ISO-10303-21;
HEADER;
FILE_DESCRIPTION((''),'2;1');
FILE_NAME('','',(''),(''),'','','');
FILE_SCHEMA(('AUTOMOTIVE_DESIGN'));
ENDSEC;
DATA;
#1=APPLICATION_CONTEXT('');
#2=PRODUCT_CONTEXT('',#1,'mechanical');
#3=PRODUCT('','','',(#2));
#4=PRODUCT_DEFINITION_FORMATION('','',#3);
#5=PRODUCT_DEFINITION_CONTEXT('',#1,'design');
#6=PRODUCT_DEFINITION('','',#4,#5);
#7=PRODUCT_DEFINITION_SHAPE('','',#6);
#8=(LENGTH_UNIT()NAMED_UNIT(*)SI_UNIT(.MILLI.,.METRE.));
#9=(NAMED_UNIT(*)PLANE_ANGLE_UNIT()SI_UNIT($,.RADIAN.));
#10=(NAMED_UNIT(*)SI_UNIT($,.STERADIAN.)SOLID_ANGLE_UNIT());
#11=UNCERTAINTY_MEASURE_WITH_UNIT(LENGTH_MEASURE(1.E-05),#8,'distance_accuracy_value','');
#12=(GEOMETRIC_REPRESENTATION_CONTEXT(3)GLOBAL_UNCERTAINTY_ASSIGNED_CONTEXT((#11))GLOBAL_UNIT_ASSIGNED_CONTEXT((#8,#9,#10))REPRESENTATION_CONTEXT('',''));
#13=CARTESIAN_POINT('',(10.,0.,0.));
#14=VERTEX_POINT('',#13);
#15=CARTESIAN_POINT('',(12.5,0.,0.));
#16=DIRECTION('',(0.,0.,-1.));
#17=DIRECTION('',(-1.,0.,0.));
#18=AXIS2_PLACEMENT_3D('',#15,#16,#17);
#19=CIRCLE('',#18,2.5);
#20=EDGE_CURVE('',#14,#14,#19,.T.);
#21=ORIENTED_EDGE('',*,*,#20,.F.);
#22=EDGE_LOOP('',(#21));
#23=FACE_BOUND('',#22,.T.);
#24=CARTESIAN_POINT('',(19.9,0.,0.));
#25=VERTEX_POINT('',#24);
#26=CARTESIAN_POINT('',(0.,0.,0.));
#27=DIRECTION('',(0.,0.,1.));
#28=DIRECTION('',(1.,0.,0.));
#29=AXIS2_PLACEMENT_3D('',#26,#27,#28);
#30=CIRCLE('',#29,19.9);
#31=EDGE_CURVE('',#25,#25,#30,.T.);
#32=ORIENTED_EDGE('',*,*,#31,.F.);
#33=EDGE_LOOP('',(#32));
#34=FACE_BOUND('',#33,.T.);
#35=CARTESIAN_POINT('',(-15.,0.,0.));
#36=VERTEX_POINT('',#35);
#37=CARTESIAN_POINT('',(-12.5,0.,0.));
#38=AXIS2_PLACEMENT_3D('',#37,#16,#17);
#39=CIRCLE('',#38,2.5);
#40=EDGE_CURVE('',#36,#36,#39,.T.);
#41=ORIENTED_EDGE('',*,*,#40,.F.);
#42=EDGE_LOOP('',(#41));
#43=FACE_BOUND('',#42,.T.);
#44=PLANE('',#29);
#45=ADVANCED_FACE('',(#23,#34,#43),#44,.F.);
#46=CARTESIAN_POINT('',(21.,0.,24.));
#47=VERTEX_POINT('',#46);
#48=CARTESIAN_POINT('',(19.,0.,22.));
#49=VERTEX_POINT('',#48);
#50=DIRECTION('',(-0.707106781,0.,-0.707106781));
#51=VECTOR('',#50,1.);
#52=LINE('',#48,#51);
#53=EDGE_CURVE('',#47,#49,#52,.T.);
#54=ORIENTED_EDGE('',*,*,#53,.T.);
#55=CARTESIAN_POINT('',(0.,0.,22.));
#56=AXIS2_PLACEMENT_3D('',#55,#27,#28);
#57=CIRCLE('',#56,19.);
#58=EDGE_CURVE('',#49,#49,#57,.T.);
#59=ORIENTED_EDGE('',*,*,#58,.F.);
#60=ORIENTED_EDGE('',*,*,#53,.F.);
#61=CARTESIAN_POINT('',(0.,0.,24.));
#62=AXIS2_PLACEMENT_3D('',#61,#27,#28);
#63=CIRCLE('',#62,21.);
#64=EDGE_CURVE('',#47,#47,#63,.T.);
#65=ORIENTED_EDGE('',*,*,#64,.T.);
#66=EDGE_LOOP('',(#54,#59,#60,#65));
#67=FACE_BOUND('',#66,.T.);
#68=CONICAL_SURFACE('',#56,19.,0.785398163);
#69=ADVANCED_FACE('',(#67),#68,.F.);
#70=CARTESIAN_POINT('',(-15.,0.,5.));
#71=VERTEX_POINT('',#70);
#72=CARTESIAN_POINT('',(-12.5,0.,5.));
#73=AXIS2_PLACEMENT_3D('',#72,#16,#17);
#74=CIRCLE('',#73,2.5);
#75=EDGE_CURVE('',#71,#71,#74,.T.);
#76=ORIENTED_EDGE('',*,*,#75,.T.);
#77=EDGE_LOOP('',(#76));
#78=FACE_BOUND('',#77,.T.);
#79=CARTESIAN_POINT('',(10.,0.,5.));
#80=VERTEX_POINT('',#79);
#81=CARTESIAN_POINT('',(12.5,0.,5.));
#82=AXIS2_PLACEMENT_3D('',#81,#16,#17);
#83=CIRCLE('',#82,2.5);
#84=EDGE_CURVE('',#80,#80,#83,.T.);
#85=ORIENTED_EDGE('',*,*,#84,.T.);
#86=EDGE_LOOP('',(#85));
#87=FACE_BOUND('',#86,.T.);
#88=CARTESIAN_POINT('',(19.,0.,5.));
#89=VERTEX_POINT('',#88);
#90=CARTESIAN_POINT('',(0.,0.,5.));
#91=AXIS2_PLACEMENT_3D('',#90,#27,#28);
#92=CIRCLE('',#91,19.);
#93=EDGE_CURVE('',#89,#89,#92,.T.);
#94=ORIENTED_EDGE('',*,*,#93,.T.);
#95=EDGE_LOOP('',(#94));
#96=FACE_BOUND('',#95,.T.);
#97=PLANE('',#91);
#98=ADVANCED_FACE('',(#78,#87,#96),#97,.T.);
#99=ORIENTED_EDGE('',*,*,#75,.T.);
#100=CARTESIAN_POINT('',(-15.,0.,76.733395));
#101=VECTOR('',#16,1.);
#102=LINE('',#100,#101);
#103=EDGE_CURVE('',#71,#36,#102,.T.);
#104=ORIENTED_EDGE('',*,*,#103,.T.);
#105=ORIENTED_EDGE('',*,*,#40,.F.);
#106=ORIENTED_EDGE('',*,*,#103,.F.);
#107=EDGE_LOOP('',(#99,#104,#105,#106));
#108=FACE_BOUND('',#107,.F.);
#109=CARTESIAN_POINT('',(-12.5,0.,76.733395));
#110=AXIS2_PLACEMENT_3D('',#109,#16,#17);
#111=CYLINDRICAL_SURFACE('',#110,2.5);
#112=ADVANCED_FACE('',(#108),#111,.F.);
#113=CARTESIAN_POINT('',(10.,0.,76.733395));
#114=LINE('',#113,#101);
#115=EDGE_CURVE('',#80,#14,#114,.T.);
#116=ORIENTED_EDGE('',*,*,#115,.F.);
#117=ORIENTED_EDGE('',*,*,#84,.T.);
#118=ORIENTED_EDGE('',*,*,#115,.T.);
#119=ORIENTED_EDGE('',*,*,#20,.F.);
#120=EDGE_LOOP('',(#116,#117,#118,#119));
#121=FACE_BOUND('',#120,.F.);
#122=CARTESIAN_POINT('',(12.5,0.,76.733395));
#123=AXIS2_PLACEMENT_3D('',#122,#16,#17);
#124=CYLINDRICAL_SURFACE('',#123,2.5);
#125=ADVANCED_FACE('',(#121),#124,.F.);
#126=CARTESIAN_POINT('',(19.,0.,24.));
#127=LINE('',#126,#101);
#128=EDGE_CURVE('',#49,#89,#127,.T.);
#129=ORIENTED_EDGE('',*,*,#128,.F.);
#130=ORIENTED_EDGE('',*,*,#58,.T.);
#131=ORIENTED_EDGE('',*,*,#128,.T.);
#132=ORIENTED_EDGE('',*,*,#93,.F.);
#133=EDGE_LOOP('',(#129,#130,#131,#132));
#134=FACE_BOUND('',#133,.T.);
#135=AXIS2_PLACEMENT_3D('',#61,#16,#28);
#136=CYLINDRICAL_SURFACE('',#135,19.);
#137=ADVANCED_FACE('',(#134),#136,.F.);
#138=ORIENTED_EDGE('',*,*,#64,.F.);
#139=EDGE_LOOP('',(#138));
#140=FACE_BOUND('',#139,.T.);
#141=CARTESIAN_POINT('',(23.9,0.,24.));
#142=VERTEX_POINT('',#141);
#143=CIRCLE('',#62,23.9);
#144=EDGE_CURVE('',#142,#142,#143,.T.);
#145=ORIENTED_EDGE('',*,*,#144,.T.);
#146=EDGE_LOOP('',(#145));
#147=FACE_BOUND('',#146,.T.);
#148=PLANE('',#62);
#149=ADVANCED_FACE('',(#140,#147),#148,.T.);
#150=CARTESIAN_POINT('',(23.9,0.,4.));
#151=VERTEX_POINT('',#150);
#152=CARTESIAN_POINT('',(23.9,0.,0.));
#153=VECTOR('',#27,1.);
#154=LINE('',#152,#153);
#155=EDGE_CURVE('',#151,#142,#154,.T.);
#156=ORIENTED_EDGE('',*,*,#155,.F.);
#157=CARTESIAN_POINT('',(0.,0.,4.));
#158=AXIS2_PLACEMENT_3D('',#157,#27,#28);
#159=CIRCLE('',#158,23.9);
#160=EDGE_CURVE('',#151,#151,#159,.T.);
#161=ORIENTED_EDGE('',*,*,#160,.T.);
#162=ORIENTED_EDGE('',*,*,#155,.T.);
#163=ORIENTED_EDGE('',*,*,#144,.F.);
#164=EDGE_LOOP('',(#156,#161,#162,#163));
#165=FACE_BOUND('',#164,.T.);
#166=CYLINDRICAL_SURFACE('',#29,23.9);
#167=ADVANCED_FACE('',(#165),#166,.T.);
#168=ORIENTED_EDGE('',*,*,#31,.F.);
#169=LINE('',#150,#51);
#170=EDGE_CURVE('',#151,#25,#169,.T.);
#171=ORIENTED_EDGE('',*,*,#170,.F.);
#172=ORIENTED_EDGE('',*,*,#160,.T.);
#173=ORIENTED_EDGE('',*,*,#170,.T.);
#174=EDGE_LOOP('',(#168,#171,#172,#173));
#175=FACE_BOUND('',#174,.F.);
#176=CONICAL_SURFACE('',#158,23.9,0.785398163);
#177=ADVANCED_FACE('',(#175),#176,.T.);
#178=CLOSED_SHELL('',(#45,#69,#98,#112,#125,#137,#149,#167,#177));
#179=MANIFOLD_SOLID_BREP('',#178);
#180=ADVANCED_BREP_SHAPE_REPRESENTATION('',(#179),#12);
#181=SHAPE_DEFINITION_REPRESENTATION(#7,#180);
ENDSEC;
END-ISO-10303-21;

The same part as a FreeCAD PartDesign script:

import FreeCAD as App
import Part
import Sketcher
from FreeCAD import Vector


def edges_at(feature, points):
    """Names of the edges that pass closest to the given points."""
    edges = feature.Shape.Edges
    near = lambda p: min(range(len(edges)), key=lambda i: edges[i].distToShape(Part.Vertex(*p))[0])
    return sorted({f"Edge{near(p) + 1}" for p in points})

doc = App.newDocument("Part")
body = doc.addObject("PartDesign::Body", "Body")

sketch1 = doc.addObject("Sketcher::SketchObject", "Sketch")
body.addObject(sketch1)
sketch1.AttachmentSupport = (doc.XZ_Plane, [""])
sketch1.MapMode = "FlatFace"
sketch1.addGeometry([
    Part.LineSegment(Vector(0, 5, 0), Vector(0, 0, 0)),
    Part.LineSegment(Vector(0, 0, 0), Vector(23.9, 0, 0)),
    Part.LineSegment(Vector(23.9, 0, 0), Vector(23.9, 24, 0)),
    Part.LineSegment(Vector(23.9, 24, 0), Vector(19, 24, 0)),
    Part.LineSegment(Vector(19, 24, 0), Vector(19, 5, 0)),
    Part.LineSegment(Vector(19, 5, 0), Vector(0, 5, 0)),
], False)
sketch1.addConstraint([
    Sketcher.Constraint("Coincident", 0, 2, 1, 1),
    Sketcher.Constraint("Coincident", 1, 2, 2, 1),
    Sketcher.Constraint("Coincident", 2, 2, 3, 1),
    Sketcher.Constraint("Coincident", 3, 2, 4, 1),
    Sketcher.Constraint("Coincident", 4, 2, 5, 1),
    Sketcher.Constraint("Coincident", 5, 2, 0, 1),
    Sketcher.Constraint("Vertical", 0),
    Sketcher.Constraint("Horizontal", 1),
    Sketcher.Constraint("Vertical", 2),
    Sketcher.Constraint("Horizontal", 3),
    Sketcher.Constraint("Vertical", 4),
    Sketcher.Constraint("Horizontal", 5),
    Sketcher.Constraint("Coincident", 0, 2, -1, 1),
    Sketcher.Constraint("Equal", 5, 4),
    Sketcher.Constraint("DistanceX", 5, 2, 5, 1, 19.0),
    Sketcher.Constraint("DistanceY", 0, 2, 0, 1, 5.0),
    Sketcher.Constraint("DistanceX", 1, 1, 1, 2, 23.9),
])
revolution = doc.addObject("PartDesign::Revolution", "Revolution")
body.addObject(revolution)
revolution.Profile = sketch1
revolution.ReferenceAxis = (sketch1, ["V_Axis"])
revolution.Angle = 360
doc.recompute()

chamfer = doc.addObject("PartDesign::Chamfer", "Chamfer")
body.addObject(chamfer)
chamfer.Base = (revolution, edges_at(revolution, [(-19, 0, 24)]))
chamfer.Size = 2
doc.recompute()

chamfer2 = doc.addObject("PartDesign::Chamfer", "Chamfer001")
body.addObject(chamfer2)
chamfer2.Base = (chamfer, edges_at(chamfer, [(-23.9, 0, 0)]))
chamfer2.Size = 4

sketch2 = doc.addObject("Sketcher::SketchObject", "Sketch001")
body.addObject(sketch2)
sketch2.AttachmentSupport = (doc.XY_Plane, [""])
sketch2.MapMode = "FlatFace"
sketch2.AttachmentOffset = App.Placement(Vector(0, 0, 5), App.Rotation())
sketch2.addGeometry([
    Part.Circle(Vector(-12.5, 0, 0), Vector(0, 0, 1), 2.5),
    Part.Circle(Vector(12.5, 0, 0), Vector(0, 0, 1), 2.5),
], False)
sketch2.addConstraint([
    Sketcher.Constraint("Equal", 0, 1),
    Sketcher.Constraint("Symmetric", 0, 3, 1, 3, -1, 1),
    Sketcher.Constraint("PointOnObject", 0, 3, -1),
    Sketcher.Constraint("Diameter", 0, 5.0),
    Sketcher.Constraint("DistanceX", 0, 3, 1, 3, 25.0),
])
doc.recompute()
hole = doc.addObject("PartDesign::Hole", "Hole")
body.addObject(hole)
hole.Profile = sketch2
hole.ThreadType = "None"
hole.Diameter = 5
hole.DepthType = "ThroughAll"

doc.recompute()
